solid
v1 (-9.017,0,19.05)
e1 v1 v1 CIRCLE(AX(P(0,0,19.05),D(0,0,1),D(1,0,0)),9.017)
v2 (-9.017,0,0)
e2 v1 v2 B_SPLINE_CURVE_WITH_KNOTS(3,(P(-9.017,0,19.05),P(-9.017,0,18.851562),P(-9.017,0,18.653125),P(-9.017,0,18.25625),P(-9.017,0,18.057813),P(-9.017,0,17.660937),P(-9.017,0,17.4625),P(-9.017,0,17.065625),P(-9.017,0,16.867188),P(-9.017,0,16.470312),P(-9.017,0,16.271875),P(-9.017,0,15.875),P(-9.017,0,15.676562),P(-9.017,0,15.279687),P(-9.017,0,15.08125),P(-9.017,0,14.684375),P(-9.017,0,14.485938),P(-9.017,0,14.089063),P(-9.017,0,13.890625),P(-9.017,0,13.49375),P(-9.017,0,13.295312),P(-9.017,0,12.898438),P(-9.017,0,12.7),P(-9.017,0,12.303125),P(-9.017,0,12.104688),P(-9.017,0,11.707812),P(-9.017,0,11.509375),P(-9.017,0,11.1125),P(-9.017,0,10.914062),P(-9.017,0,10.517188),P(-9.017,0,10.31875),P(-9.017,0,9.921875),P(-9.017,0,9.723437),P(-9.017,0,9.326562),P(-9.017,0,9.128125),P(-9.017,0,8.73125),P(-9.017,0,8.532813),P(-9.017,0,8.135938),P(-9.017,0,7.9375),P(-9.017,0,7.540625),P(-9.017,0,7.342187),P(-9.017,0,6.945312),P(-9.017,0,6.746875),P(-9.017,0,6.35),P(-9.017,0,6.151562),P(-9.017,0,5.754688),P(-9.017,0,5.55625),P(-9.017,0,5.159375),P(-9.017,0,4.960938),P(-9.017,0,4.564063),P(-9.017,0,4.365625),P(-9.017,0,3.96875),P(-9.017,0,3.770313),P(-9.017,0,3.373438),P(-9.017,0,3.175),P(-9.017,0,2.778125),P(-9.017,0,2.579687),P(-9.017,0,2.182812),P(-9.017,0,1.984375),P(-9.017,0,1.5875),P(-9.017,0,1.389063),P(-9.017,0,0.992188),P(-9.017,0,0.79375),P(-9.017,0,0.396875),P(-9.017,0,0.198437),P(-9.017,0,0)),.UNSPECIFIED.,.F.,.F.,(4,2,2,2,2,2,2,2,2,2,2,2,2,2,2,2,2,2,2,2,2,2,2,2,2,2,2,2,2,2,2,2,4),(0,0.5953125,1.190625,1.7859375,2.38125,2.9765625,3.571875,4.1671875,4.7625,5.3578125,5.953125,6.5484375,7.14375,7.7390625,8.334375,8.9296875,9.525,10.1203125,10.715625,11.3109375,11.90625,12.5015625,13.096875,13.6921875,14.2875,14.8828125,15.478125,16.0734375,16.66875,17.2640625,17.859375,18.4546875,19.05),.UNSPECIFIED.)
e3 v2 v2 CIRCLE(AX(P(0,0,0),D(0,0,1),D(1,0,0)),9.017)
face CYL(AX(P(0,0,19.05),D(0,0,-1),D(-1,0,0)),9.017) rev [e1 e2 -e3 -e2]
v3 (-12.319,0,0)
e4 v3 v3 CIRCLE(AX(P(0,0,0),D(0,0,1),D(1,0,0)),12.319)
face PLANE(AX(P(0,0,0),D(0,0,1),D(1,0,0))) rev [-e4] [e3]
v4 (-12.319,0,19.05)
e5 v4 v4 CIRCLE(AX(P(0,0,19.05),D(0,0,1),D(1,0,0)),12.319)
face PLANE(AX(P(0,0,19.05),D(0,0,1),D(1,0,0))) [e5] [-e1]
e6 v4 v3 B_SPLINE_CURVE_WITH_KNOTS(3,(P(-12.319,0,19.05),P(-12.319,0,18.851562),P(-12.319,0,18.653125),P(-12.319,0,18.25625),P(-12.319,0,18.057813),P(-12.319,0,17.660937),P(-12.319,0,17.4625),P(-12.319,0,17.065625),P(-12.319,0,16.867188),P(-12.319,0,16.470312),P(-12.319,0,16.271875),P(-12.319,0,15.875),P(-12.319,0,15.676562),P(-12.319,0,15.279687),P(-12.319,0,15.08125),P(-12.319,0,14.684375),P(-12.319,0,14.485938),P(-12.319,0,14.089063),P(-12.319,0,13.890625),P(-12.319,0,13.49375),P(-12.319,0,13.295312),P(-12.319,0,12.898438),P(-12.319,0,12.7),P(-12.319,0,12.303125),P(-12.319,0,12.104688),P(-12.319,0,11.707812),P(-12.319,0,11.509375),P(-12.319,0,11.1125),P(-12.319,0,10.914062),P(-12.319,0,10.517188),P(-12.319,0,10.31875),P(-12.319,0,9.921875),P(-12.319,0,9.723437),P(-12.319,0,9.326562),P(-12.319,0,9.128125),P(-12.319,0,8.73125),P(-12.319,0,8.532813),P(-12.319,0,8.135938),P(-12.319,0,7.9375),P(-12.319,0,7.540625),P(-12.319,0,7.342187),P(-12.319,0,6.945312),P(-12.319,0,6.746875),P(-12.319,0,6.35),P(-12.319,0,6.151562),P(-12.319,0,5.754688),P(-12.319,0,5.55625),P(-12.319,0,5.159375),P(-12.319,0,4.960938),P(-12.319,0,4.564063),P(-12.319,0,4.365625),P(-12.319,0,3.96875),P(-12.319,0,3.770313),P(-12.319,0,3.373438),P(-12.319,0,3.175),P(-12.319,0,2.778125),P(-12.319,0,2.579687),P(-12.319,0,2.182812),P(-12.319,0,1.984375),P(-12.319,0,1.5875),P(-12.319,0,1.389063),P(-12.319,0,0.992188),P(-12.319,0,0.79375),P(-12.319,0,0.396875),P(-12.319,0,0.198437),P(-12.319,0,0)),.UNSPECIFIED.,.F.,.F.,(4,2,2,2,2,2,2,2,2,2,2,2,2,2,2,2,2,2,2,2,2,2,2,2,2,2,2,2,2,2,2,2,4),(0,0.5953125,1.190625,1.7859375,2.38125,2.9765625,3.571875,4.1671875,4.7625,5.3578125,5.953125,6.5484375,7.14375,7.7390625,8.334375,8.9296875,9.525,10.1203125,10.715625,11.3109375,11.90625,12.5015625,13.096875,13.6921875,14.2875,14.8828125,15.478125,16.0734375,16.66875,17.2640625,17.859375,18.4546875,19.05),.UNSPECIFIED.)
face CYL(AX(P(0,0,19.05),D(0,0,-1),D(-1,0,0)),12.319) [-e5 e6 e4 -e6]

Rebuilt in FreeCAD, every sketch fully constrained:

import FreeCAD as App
import Part
import Sketcher
Q = App.Units.Quantity

doc = App.newDocument("Part")
body = doc.addObject("PartDesign::Body", "Body")

sketch1 = doc.addObject("Sketcher::SketchObject", "Sketch")
body.addObject(sketch1)
sketch1.AttachmentSupport = (doc.XY_Plane, [""])
sketch1.MapMode = "FlatFace"
sketch1.addGeometry(Part.Circle(App.Vector(0, 0, 0), App.Vector(0, 0, 1), 12), False)
sketch1.addGeometry(Part.Circle(App.Vector(0, 0, 0), App.Vector(0, 0, 1), 9), False)
sketch1.addConstraint(Sketcher.Constraint("Coincident", 0, 3, -1, 1))
sketch1.addConstraint(Sketcher.Constraint("Coincident", 1, 3, -1, 1))
sketch1.addConstraint(Sketcher.Constraint("Diameter", 0, Q("0.97 in")))
sketch1.addConstraint(Sketcher.Constraint("Diameter", 1, Q("0.71 in")))
pad1 = doc.addObject("PartDesign::Pad", "Pad")
body.addObject(pad1)
pad1.Profile = sketch1
pad1.Length = Q("0.75 in")

doc.recompute()
